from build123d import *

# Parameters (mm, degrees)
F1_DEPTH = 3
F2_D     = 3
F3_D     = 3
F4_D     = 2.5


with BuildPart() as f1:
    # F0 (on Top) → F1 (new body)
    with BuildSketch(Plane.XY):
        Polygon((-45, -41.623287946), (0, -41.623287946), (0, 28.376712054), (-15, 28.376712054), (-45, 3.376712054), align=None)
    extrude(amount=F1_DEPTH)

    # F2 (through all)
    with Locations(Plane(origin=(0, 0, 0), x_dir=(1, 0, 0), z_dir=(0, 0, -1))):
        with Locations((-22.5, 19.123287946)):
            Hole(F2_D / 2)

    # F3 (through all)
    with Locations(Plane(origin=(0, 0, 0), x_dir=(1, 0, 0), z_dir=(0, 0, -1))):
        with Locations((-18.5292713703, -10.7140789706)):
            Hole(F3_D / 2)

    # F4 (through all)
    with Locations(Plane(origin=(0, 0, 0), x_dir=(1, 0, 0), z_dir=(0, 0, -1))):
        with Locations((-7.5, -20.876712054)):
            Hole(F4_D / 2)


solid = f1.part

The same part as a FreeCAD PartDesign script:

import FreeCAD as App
import Part
import Sketcher

V = App.Vector
Q = App.Units.Quantity


def add_polygon(sketch, points):
    """Adds a closed chain of lines whose ends are joined by coincident constraints."""
    first, n = sketch.GeometryCount, len(points)
    for a, b in zip(points, points[1:] + points[:1]):
        sketch.addGeometry(Part.LineSegment(App.Vector(*a, 0), App.Vector(*b, 0)), False)
    for i in range(n):
        sketch.addConstraint(Sketcher.Constraint("Coincident", first + i, 2, first + (i + 1) % n, 1))

doc = App.newDocument("Part")
body = doc.addObject("PartDesign::Body", "Body")

# Sketch on XY plane
sketch1 = body.newObject("Sketcher::SketchObject", "Sketch")
sketch1.AttachmentSupport = (doc.getObject("XY_Plane"), [""])
sketch1.MapMode = "FlatFace"
add_polygon(sketch1, [(-45, -41.623288), (0, -41.623288), (0, 28.376712), (-15, 28.376712), (-45, 3.376712)])  # lines 0-4
sketch1.addConstraint([
    Sketcher.Constraint("Horizontal", 0),
    Sketcher.Constraint("Vertical", 1),
    Sketcher.Constraint("Horizontal", 2),
    Sketcher.Constraint("Vertical", 4),
    Sketcher.Constraint("PointOnObject", 0, 2, -2),
    Sketcher.Constraint("Equal", 0, 4),
    Sketcher.Constraint("DistanceX", 0, 1, 0, 2, Q("45 mm")),
    Sketcher.Constraint("DistanceX", 2, 2, 2, 1, Q("15 mm")),
    Sketcher.Constraint("DistanceY", 1, 1, 1, 2, Q("70 mm")),
    Sketcher.Constraint("DistanceY", 0, 2, -1, 1, Q("41.623288 mm")),
])
pad1 = body.newObject("PartDesign::Pad", "Pad")
pad1.Profile = sketch1
pad1.Length = 3

# Sketch on XY plane
sketch2 = body.newObject("Sketcher::SketchObject", "Sketch001")
sketch2.AttachmentSupport = (doc.getObject("XY_Plane"), [""])
sketch2.MapMode = "FlatFace"
sketch2.addGeometry(Part.Circle(V(-22.5, -19.123288, 0), V(0, 0, 1), 1.5), False)
sketch2.addConstraint([
    Sketcher.Constraint("Diameter", 0, Q("3 mm")),
    Sketcher.Constraint("DistanceX", 0, 3, -1, 1, Q("22.5 mm")),
    Sketcher.Constraint("DistanceY", 0, 3, -1, 1, Q("19.123288 mm")),
])
doc.recompute()
hole = body.newObject("PartDesign::Hole", "Hole")
hole.Profile = sketch2
hole.ThreadType = "None"
hole.Diameter = 3
hole.DepthType = "ThroughAll"
hole.Reversed = True

# Sketch on XY plane
sketch3 = body.newObject("Sketcher::SketchObject", "Sketch002")
sketch3.AttachmentSupport = (doc.getObject("XY_Plane"), [""])
sketch3.MapMode = "FlatFace"
sketch3.addGeometry(Part.Circle(V(-18.529271, 10.714079, 0), V(0, 0, 1), 1.5), False)
sketch3.addConstraint([
    Sketcher.Constraint("Diameter", 0, Q("3 mm")),
    Sketcher.Constraint("DistanceX", 0, 3, -1, 1, Q("18.529271 mm")),
    Sketcher.Constraint("DistanceY", -1, 1, 0, 3, Q("10.714079 mm")),
])
doc.recompute()
hole2 = body.newObject("PartDesign::Hole", "Hole001")
hole2.Profile = sketch3
hole2.ThreadType = "None"
hole2.Diameter = 3
hole2.DepthType = "ThroughAll"
hole2.Reversed = True

# Sketch on XY plane
sketch4 = body.newObject("Sketcher::SketchObject", "Sketch003")
sketch4.AttachmentSupport = (doc.getObject("XY_Plane"), [""])
sketch4.MapMode = "FlatFace"
sketch4.addGeometry(Part.Circle(V(-7.5, 20.876712, 0), V(0, 0, 1), 1.25), False)
sketch4.addConstraint([
    Sketcher.Constraint("Diameter", 0, Q("2.5 mm")),
    Sketcher.Constraint("DistanceX", 0, 3, -1, 1, Q("7.5 mm")),
    Sketcher.Constraint("DistanceY", -1, 1, 0, 3, Q("20.876712 mm")),
])
doc.recompute()
hole3 = body.newObject("PartDesign::Hole", "Hole002")
hole3.Profile = sketch4
hole3.ThreadType = "None"
hole3.Diameter = 2.5
hole3.DepthType = "ThroughAll"
hole3.Reversed = True

doc.recompute()
